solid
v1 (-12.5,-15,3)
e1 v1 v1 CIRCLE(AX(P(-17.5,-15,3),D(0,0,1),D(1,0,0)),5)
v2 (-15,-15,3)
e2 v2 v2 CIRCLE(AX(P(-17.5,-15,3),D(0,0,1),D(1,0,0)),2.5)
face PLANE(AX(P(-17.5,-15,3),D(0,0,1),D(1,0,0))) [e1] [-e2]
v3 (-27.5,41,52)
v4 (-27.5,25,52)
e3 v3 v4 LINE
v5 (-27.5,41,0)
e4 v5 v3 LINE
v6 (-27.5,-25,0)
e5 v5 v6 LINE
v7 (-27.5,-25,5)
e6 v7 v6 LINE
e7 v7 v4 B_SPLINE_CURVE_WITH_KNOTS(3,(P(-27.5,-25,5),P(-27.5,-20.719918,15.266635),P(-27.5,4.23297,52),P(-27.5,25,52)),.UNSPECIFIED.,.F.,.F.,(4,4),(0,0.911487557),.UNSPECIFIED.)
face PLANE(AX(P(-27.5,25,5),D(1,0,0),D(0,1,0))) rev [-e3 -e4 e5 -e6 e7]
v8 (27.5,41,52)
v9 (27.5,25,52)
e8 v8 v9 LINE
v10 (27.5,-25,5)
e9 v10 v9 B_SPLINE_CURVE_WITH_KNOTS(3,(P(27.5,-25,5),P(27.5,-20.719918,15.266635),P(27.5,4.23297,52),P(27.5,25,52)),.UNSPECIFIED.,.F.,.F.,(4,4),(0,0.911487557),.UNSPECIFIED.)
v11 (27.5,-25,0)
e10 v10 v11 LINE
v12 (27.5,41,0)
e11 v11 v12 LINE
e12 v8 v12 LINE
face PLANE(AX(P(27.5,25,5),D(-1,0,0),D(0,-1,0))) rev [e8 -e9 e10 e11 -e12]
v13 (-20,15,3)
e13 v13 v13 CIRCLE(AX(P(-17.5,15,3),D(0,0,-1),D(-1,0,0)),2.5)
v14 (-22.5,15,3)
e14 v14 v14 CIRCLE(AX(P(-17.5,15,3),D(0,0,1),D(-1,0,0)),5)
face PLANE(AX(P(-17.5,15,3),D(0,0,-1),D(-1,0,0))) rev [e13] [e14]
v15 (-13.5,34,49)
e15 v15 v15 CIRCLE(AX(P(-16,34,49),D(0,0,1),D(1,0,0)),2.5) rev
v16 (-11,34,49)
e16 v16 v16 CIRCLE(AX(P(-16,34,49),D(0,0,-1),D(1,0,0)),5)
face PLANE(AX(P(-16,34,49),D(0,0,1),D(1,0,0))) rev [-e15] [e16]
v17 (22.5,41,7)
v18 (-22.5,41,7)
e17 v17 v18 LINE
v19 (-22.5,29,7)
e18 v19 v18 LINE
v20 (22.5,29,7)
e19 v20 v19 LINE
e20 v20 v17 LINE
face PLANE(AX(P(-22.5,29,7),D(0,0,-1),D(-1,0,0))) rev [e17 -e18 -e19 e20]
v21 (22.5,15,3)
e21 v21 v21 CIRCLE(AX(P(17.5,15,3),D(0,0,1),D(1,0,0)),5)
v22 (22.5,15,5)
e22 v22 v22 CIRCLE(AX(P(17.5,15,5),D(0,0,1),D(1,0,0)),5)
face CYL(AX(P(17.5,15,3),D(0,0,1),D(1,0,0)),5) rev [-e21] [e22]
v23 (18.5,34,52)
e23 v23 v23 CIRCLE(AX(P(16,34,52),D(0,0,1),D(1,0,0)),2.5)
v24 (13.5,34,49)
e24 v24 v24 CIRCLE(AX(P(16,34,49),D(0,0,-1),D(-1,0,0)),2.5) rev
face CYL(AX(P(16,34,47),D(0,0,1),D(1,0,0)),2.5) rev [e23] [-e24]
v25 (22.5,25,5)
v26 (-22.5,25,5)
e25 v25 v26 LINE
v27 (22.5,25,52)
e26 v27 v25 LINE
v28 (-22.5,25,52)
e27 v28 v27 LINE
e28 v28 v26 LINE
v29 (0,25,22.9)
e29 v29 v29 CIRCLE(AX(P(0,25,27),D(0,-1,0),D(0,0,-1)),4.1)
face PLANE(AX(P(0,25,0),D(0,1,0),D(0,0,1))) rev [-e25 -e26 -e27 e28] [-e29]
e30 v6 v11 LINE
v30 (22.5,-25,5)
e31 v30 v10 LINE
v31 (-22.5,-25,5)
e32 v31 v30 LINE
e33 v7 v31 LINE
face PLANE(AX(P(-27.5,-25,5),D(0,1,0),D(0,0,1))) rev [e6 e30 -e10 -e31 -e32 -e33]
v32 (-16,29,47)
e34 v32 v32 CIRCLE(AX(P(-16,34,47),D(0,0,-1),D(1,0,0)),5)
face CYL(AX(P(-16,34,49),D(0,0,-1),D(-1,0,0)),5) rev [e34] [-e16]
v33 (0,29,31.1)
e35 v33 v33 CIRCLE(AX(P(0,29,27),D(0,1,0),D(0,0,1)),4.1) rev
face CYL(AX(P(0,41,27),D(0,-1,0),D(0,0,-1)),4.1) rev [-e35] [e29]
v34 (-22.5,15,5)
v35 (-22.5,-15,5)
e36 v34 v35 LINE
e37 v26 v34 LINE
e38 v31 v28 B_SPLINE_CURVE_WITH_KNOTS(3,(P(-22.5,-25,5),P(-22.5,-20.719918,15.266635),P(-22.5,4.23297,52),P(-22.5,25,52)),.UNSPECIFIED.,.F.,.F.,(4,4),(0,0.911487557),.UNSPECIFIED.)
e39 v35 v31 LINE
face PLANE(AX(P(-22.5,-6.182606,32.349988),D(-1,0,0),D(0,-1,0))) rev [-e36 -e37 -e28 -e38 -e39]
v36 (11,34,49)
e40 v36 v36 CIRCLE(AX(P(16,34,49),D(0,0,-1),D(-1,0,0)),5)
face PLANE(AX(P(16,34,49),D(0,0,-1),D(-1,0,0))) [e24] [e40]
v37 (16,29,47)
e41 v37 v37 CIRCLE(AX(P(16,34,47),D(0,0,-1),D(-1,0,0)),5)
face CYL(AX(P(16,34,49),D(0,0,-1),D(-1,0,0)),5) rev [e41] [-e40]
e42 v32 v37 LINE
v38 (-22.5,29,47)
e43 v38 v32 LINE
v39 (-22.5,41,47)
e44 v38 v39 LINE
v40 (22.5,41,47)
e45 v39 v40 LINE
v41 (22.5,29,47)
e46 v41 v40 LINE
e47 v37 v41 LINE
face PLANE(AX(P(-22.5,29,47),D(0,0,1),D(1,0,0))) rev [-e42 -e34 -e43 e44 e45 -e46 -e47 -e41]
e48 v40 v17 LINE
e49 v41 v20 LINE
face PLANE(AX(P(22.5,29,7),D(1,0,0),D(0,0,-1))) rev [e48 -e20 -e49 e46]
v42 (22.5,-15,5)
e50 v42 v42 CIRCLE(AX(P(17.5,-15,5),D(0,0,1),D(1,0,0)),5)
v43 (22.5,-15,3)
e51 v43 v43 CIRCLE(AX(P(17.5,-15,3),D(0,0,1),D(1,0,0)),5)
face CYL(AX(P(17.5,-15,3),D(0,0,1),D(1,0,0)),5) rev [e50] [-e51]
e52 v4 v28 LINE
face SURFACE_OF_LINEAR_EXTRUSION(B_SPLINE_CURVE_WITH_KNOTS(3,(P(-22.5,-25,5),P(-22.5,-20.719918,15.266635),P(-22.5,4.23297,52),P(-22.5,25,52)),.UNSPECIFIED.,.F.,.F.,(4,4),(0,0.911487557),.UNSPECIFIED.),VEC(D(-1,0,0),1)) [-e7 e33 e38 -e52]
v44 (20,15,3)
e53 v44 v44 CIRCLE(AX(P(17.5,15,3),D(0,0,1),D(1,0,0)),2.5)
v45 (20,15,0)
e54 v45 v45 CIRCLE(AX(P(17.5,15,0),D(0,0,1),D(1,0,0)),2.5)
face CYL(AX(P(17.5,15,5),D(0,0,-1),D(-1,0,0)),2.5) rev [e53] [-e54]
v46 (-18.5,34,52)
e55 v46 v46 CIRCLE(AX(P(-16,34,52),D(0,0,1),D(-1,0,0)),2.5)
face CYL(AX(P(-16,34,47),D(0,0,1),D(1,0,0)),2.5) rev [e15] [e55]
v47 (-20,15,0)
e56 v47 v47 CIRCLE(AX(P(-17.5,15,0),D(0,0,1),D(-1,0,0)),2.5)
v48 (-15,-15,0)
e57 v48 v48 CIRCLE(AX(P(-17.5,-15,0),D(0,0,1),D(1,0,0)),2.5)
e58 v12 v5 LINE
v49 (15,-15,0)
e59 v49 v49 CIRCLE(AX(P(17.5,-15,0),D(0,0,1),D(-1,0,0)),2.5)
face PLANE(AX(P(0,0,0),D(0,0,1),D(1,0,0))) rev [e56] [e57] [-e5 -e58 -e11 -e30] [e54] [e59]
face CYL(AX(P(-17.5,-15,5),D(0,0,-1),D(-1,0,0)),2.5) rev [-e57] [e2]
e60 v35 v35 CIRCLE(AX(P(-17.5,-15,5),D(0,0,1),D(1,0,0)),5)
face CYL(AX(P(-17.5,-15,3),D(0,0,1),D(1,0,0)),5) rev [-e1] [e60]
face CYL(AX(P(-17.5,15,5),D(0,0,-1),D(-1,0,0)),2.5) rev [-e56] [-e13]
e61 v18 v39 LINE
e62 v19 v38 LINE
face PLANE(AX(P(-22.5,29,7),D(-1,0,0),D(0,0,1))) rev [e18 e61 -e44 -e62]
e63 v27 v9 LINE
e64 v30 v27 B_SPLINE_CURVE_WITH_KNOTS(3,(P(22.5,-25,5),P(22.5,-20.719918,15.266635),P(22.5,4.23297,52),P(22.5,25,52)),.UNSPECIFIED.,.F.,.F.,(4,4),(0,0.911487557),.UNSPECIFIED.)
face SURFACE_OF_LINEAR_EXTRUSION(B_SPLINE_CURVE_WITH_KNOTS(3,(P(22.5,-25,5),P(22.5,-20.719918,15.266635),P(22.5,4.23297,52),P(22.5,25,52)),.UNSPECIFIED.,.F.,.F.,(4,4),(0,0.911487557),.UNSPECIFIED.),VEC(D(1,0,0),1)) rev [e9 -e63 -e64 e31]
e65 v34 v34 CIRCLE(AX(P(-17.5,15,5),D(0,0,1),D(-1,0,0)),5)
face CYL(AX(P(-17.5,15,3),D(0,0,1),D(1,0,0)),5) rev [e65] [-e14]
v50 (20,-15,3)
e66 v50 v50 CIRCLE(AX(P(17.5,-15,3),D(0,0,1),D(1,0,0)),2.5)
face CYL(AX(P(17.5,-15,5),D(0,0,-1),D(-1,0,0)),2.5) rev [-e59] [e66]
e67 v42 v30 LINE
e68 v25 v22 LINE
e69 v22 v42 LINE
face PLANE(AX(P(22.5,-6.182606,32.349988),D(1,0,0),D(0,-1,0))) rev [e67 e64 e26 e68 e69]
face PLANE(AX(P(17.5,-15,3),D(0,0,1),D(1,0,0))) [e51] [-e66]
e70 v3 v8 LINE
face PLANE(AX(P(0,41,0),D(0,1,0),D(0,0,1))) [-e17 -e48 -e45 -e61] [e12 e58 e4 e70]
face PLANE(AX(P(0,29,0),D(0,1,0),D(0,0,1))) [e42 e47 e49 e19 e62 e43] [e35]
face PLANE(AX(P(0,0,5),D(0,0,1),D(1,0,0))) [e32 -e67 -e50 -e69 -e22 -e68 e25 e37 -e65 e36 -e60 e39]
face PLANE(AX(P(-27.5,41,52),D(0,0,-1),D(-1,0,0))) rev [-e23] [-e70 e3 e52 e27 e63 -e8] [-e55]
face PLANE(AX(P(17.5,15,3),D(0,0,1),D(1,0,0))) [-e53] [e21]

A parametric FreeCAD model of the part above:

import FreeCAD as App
import Part
import Sketcher
Q = App.Units.Quantity

doc = App.newDocument("Part")
body = doc.addObject("PartDesign::Body", "Body")

# Sketch on XY plane
sketch1 = doc.addObject("Sketcher::SketchObject", "Sketch")
body.addObject(sketch1)
sketch1.AttachmentSupport = (doc.XY_Plane, [""])
sketch1.MapMode = "FlatFace"
sketch1.addGeometry(Part.LineSegment(App.Vector(-27.5, 25, 0), App.Vector(-27.5, -25, 0)), False)
sketch1.addGeometry(Part.LineSegment(App.Vector(-27.5, -25, 0), App.Vector(27.5, -25, 0)), False)
sketch1.addGeometry(Part.LineSegment(App.Vector(27.5, -25, 0), App.Vector(27.5, 25, 0)), False)
sketch1.addGeometry(Part.LineSegment(App.Vector(27.5, 25, 0), App.Vector(-27.5, 25, 0)), False)
sketch1.addGeometry(Part.Circle(App.Vector(-17.5, -15, 0), App.Vector(0, 0, 1), 2.5), False)
sketch1.addGeometry(Part.Circle(App.Vector(17.5, -15, 0), App.Vector(0, 0, 1), 2.5), False)
sketch1.addGeometry(Part.Circle(App.Vector(-17.5, 15, 0), App.Vector(0, 0, 1), 2.5), False)
sketch1.addGeometry(Part.Circle(App.Vector(17.5, 15, 0), App.Vector(0, 0, 1), 2.5), False)
sketch1.addConstraint(Sketcher.Constraint("Coincident", 0, 2, 1, 1))
sketch1.addConstraint(Sketcher.Constraint("Coincident", 1, 2, 2, 1))
sketch1.addConstraint(Sketcher.Constraint("Coincident", 2, 2, 3, 1))
sketch1.addConstraint(Sketcher.Constraint("Coincident", 3, 2, 0, 1))
sketch1.addConstraint(Sketcher.Constraint("Vertical", 0))
sketch1.addConstraint(Sketcher.Constraint("Horizontal", 1))
sketch1.addConstraint(Sketcher.Constraint("Vertical", 2))
sketch1.addConstraint(Sketcher.Constraint("Horizontal", 3))
sketch1.addConstraint(Sketcher.Constraint("Equal", 4, 5))
sketch1.addConstraint(Sketcher.Constraint("Equal", 5, 6))
sketch1.addConstraint(Sketcher.Constraint("Equal", 6, 7))
sketch1.addConstraint(Sketcher.Constraint("Symmetric", 5, 3, 6, 3, -1, 1))
sketch1.addConstraint(Sketcher.Constraint("Symmetric", 4, 3, 7, 3, -1, 1))
sketch1.addConstraint(Sketcher.Constraint("Symmetric", 0, 2, 2, 2, -1, 1))
sketch1.addConstraint(Sketcher.Constraint("Symmetric", 4, 3, 5, 3, -2))
sketch1.addConstraint(Sketcher.Constraint("Diameter", 4, Q("5 mm")))
sketch1.addConstraint(Sketcher.Constraint("DistanceX", 1, 1, 1, 2, Q("55 mm")))
sketch1.addConstraint(Sketcher.Constraint("DistanceY", 0, 2, 0, 1, Q("50 mm")))
sketch1.addConstraint(Sketcher.Constraint("DistanceY", 4, 3, -1, 1, Q("15 mm")))
sketch1.addConstraint(Sketcher.Constraint("DistanceX", 4, 3, 5, 3, Q("35 mm")))
pad1 = doc.addObject("PartDesign::Pad", "Pad")
body.addObject(pad1)
pad1.Profile = sketch1
pad1.Length = 5

# Sketch on XY plane
sketch2 = doc.addObject("Sketcher::SketchObject", "Sketch001")
body.addObject(sketch2)
sketch2.AttachmentSupport = (doc.XY_Plane, [""])
sketch2.MapMode = "FlatFace"
sketch2.AttachmentOffset = App.Placement(App.Vector(0, 0, 5), App.Rotation())
sketch2.addGeometry(Part.Circle(App.Vector(-18, -15, 0), App.Vector(0, 0, 1), 5), False)
sketch2.addGeometry(Part.Circle(App.Vector(18, -15, 0), App.Vector(0, 0, 1), 5), False)
sketch2.addGeometry(Part.Circle(App.Vector(-18, 15, 0), App.Vector(0, 0, 1), 5), False)
sketch2.addGeometry(Part.Circle(App.Vector(18, 15, 0), App.Vector(0, 0, 1), 5), False)
sketch2.addConstraint(Sketcher.Constraint("Equal", 0, 1))
sketch2.addConstraint(Sketcher.Constraint("Equal", 1, 2))
sketch2.addConstraint(Sketcher.Constraint("Equal", 2, 3))
sketch2.addConstraint(Sketcher.Constraint("Symmetric", 1, 3, 2, 3, -1, 1))
sketch2.addConstraint(Sketcher.Constraint("Symmetric", 0, 3, 3, 3, -1, 1))
sketch2.addConstraint(Sketcher.Constraint("Symmetric", 0, 3, 1, 3, -2))
sketch2.addConstraint(Sketcher.Constraint("Diameter", 0, Q("10 mm")))
sketch2.addConstraint(Sketcher.Constraint("DistanceY", 0, 3, -1, 1, Q("15 mm")))
sketch2.addConstraint(Sketcher.Constraint("DistanceX", 0, 3, 1, 3, Q("35 mm")))
pocket1 = doc.addObject("PartDesign::Pocket", "Pocket")
body.addObject(pocket1)
pocket1.Profile = sketch2
pocket1.Length = 2

# Sketch on XZ plane
sketch3 = doc.addObject("Sketcher::SketchObject", "Sketch002")
body.addObject(sketch3)
sketch3.AttachmentSupport = (doc.XZ_Plane, [""])
sketch3.MapMode = "FlatFace"
sketch3.AttachmentOffset = App.Placement(App.Vector(0, 0, -25), App.Rotation())
sketch3.addGeometry(Part.LineSegment(App.Vector(-28, 0, 0), App.Vector(-28, 52, 0)), False)
sketch3.addGeometry(Part.LineSegment(App.Vector(-28, 52, 0), App.Vector(28, 52, 0)), False)
sketch3.addGeometry(Part.LineSegment(App.Vector(28, 52, 0), App.Vector(28, 0, 0)), False)
sketch3.addGeometry(Part.LineSegment(App.Vector(28, 0, 0), App.Vector(-28, 0, 0)), False)
sketch3.addConstraint(Sketcher.Constraint("Coincident", 0, 2, 1, 1))
sketch3.addConstraint(Sketcher.Constraint("Coincident", 1, 2, 2, 1))
sketch3.addConstraint(Sketcher.Constraint("Coincident", 2, 2, 3, 1))
sketch3.addConstraint(Sketcher.Constraint("Coincident", 3, 2, 0, 1))
sketch3.addConstraint(Sketcher.Constraint("Vertical", 0))
sketch3.addConstraint(Sketcher.Constraint("Horizontal", 1))
sketch3.addConstraint(Sketcher.Constraint("Vertical", 2))
sketch3.addConstraint(Sketcher.Constraint("Horizontal", 3))
sketch3.addConstraint(Sketcher.Constraint("Symmetric", 2, 2, 3, 2, -1, 1))
sketch3.addConstraint(Sketcher.Constraint("DistanceX", 1, 1, 1, 2, Q("55 mm")))
sketch3.addConstraint(Sketcher.Constraint("DistanceY", 0, 1, 0, 2, Q("52 mm")))
pad2 = doc.addObject("PartDesign::Pad", "Pad001")
body.addObject(pad2)
pad2.Profile = sketch3
pad2.Length = 16
pad2.Reversed = True

# Sketch on XZ plane
sketch4 = doc.addObject("Sketcher::SketchObject", "Sketch003")
body.addObject(sketch4)
sketch4.AttachmentSupport = (doc.XZ_Plane, [""])
sketch4.MapMode = "FlatFace"
sketch4.AttachmentOffset = App.Placement(App.Vector(0, 0, -25), App.Rotation())
sketch4.addGeometry(Part.Circle(App.Vector(0, 27, 0), App.Vector(0, 0, 1), 4.1), False)
sketch4.addConstraint(Sketcher.Constraint("PointOnObject", 0, 3, -2))
sketch4.addConstraint(Sketcher.Constraint("Diameter", 0, Q("8.2 mm")))
sketch4.addConstraint(Sketcher.Constraint("DistanceY", -1, 1, 0, 3, Q("27 mm")))
pocket2 = doc.addObject("PartDesign::Pocket", "Pocket001")
body.addObject(pocket2)
pocket2.Profile = sketch4
pocket2.Type = "ThroughAll"

# Sketch on YZ plane
sketch5 = doc.addObject("Sketcher::SketchObject", "Sketch004")
body.addObject(sketch5)
sketch5.AttachmentSupport = (doc.YZ_Plane, [""])
sketch5.MapMode = "FlatFace"
sketch5.AttachmentOffset = App.Placement(App.Vector(0, 0, -27.5), App.Rotation())
sketch5.addGeometry(Part.LineSegment(App.Vector(25, 5, 0), App.Vector(-25, 5, 0)), False)
sketch5.addGeometry(Part.BSplineCurve([App.Vector(25, 52, 0), App.Vector(4.23297, 52, 0), App.Vector(-20.719918, 15.266635, 0), App.Vector(-25, 5, 0)], [4, 4], [0, 0.911487557], False, 3, [1, 1, 1, 1], False), False)
sketch5.addGeometry(Part.LineSegment(App.Vector(25, 52, 0), App.Vector(25, 5, 0)), False)
sketch5.addConstraint(Sketcher.Constraint("Block", 1))
sketch5.addConstraint(Sketcher.Constraint("Coincident", 0, 2, 1, 2))
sketch5.addConstraint(Sketcher.Constraint("Coincident", 1, 1, 2, 1))
sketch5.addConstraint(Sketcher.Constraint("Coincident", 2, 2, 0, 1))
sketch5.addConstraint(Sketcher.Constraint("Horizontal", 0))
sketch5.addConstraint(Sketcher.Constraint("Vertical", 2))
pad3 = doc.addObject("PartDesign::Pad", "Pad002")
body.addObject(pad3)
pad3.Profile = sketch5
pad3.Length = 5
doc.recompute()

mirrored = doc.addObject("PartDesign::Mirrored", "Mirrored")
body.addObject(mirrored)
mirrored.Originals = [pad3]
mirrored.MirrorPlane = (doc.YZ_Plane, [""])
body.Tip = mirrored

# Sketch on XZ plane
sketch6 = doc.addObject("Sketcher::SketchObject", "Sketch005")
body.addObject(sketch6)
sketch6.AttachmentSupport = (doc.XZ_Plane, [""])
sketch6.MapMode = "FlatFace"
sketch6.AttachmentOffset = App.Placement(App.Vector(0, 0, -41), App.Rotation())
sketch6.addGeometry(Part.LineSegment(App.Vector(-22, 7, 0), App.Vector(-22, 47, 0)), False)
sketch6.addGeometry(Part.LineSegment(App.Vector(-22, 47, 0), App.Vector(22, 47, 0)), False)
sketch6.addGeometry(Part.LineSegment(App.Vector(22, 47, 0), App.Vector(22, 7, 0)), False)
sketch6.addGeometry(Part.LineSegment(App.Vector(22, 7, 0), App.Vector(-22, 7, 0)), False)
sketch6.addConstraint(Sketcher.Constraint("Coincident", 0, 2, 1, 1))
sketch6.addConstraint(Sketcher.Constraint("Coincident", 1, 2, 2, 1))
sketch6.addConstraint(Sketcher.Constraint("Coincident", 2, 2, 3, 1))
sketch6.addConstraint(Sketcher.Constraint("Coincident", 3, 2, 0, 1))
sketch6.addConstraint(Sketcher.Constraint("Vertical", 0))
sketch6.addConstraint(Sketcher.Constraint("Horizontal", 1))
sketch6.addConstraint(Sketcher.Constraint("Vertical", 2))
sketch6.addConstraint(Sketcher.Constraint("Horizontal", 3))
sketch6.addConstraint(Sketcher.Constraint("DistanceX", 1, 1, 1, 2, Q("45 mm")))
sketch6.addConstraint(Sketcher.Constraint("DistanceY", 0, 1, 0, 2, Q("40 mm")))
sketch6.addConstraint(Sketcher.Constraint("DistanceY", -1, 1, 0, 2, Q("47 mm")))
sketch6.addConstraint(Sketcher.Constraint("DistanceX", 0, 2, -1, 1, Q("22.5 mm")))
pocket3 = doc.addObject("PartDesign::Pocket", "Pocket002")
body.addObject(pocket3)
pocket3.Profile = sketch6
pocket3.Length = 12
pocket3.Reversed = True

# Sketch on XY plane
sketch7 = doc.addObject("Sketcher::SketchObject", "Sketch006")
body.addObject(sketch7)
sketch7.AttachmentSupport = (doc.XY_Plane, [""])
sketch7.MapMode = "FlatFace"
sketch7.AttachmentOffset = App.Placement(App.Vector(0, 0, 52), App.Rotation())
sketch7.addGeometry(Part.Circle(App.Vector(16, 34, 0), App.Vector(0, 0, 1), 2.5), False)
sketch7.addGeometry(Part.Circle(App.Vector(-16, 34, 0), App.Vector(0, 0, 1), 2.5), False)
sketch7.addConstraint(Sketcher.Constraint("Equal", 0, 1))
sketch7.addConstraint(Sketcher.Constraint("Symmetric", 0, 3, 1, 3, -2))
sketch7.addConstraint(Sketcher.Constraint("Diameter", 0, Q("5 mm")))
sketch7.addConstraint(Sketcher.Constraint("DistanceX", -1, 1, 0, 3, Q("16 mm")))
sketch7.addConstraint(Sketcher.Constraint("DistanceY", -1, 1, 0, 3, Q("34 mm")))
pocket4 = doc.addObject("PartDesign::Pocket", "Pocket003")
body.addObject(pocket4)
pocket4.Profile = sketch7
pocket4.Length = 5

# Sketch on XY plane
sketch8 = doc.addObject("Sketcher::SketchObject", "Sketch007")
body.addObject(sketch8)
sketch8.AttachmentSupport = (doc.XY_Plane, [""])
sketch8.MapMode = "FlatFace"
sketch8.AttachmentOffset = App.Placement(App.Vector(0, 0, 47), App.Rotation())
sketch8.addGeometry(Part.Circle(App.Vector(16, 34, 0), App.Vector(0, 0, 1), 5), False)
sketch8.addGeometry(Part.Circle(App.Vector(-16, 34, 0), App.Vector(0, 0, 1), 5), False)
sketch8.addConstraint(Sketcher.Constraint("Equal", 0, 1))
sketch8.addConstraint(Sketcher.Constraint("Symmetric", 0, 3, 1, 3, -2))
sketch8.addConstraint(Sketcher.Constraint("Diameter", 0, Q("10 mm")))
sketch8.addConstraint(Sketcher.Constraint("DistanceX", -1, 1, 0, 3, Q("16 mm")))
sketch8.addConstraint(Sketcher.Constraint("DistanceY", -1, 1, 0, 3, Q("34 mm")))
pocket5 = doc.addObject("PartDesign::Pocket", "Pocket004")
body.addObject(pocket5)
pocket5.Profile = sketch8
pocket5.Length = 2
pocket5.Reversed = True

doc.recompute()
